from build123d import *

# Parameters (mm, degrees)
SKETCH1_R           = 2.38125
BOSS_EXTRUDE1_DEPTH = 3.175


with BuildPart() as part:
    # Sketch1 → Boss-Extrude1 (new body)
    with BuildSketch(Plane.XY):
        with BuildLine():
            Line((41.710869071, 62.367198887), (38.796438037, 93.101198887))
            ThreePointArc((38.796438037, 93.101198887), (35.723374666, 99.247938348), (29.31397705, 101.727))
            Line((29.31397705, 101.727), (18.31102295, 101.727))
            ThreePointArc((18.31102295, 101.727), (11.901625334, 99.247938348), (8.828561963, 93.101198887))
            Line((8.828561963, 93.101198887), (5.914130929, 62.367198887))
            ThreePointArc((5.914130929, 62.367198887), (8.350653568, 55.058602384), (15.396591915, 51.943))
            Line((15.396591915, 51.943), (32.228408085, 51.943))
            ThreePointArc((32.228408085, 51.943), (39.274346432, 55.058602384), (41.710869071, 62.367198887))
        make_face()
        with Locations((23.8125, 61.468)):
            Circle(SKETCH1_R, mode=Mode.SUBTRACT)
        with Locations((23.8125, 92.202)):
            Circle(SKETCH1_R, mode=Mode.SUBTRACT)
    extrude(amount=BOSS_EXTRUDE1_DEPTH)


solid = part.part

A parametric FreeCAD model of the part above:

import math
import FreeCAD as App
import Part
import Sketcher
from FreeCAD import Vector
Q = App.Units.Quantity

doc = App.newDocument("Part")
params = doc.addObject("Spreadsheet::Sheet", "Params")
for row, (alias, value) in enumerate([
    ("sketch1_diameter", "0.1875 in"),
    ("sketch1_radius", "0.375 in"),
    ("pad1_length", "0.125 in"),
], start=1):
    params.set(f"A{row}", alias)
    params.set(f"B{row}", "=" + value)
    params.setAlias(f"B{row}", alias)

body = doc.addObject("PartDesign::Body", "Body")

sketch1 = doc.addObject("Sketcher::SketchObject", "Sketch")
body.addObject(sketch1)
sketch1.AttachmentSupport = (doc.XY_Plane, [""])
sketch1.MapMode = "FlatFace"
sketch1.addGeometry([
    Part.LineSegment(Vector(41.7, 62.4, 0), Vector(38.8, 93.1, 0)),
    Part.ArcOfCircle(Part.Circle(Vector(29.3, 92.2, 0), Vector(0, 0, 1), 9.5), math.radians(5), math.radians(90)),
    Part.LineSegment(Vector(29.3, 101.7, 0), Vector(18.3, 101.7, 0)),
    Part.ArcOfCircle(Part.Circle(Vector(18.3, 92.2, 0), Vector(0, 0, 1), 9.5), math.radians(90), math.radians(175)),
    Part.LineSegment(Vector(8.8, 93.1, 0), Vector(5.9, 62.4, 0)),
    Part.ArcOfCircle(Part.Circle(Vector(15.4, 61.5, 0), Vector(0, 0, 1), 9.5), math.radians(175), math.radians(270)),
    Part.LineSegment(Vector(15.4, 51.9, 0), Vector(32.2, 51.9, 0)),
    Part.ArcOfCircle(Part.Circle(Vector(32.2, 61.5, 0), Vector(0, 0, 1), 9.5), math.radians(-90), math.radians(5)),
    Part.Circle(Vector(23.8, 61.5, 0), Vector(0, 0, 1), 2.4),
    Part.Circle(Vector(23.8, 92.2, 0), Vector(0, 0, 1), 2.4),
], False)
sketch1.addConstraint([
    Sketcher.Constraint("Tangent", 0, 2, 1, 1),
    Sketcher.Constraint("Tangent", 1, 2, 2, 1),
    Sketcher.Constraint("Tangent", 2, 2, 3, 1),
    Sketcher.Constraint("Tangent", 3, 2, 4, 1),
    Sketcher.Constraint("Tangent", 4, 2, 5, 1),
    Sketcher.Constraint("Tangent", 5, 2, 6, 1),
    Sketcher.Constraint("Tangent", 6, 2, 7, 1),
    Sketcher.Constraint("Tangent", 7, 2, 0, 1),
    Sketcher.Constraint("Horizontal", 2),
    Sketcher.Constraint("Horizontal", 6),
    Sketcher.Constraint("Equal", 1, 3),
    Sketcher.Constraint("Equal", 3, 5),
    Sketcher.Constraint("Equal", 5, 7),
    Sketcher.Constraint("Equal", 8, 9),
    Sketcher.Constraint("Horizontal", 7, 3, 8, 3),
    Sketcher.Constraint("Horizontal", 3, 3, 9, 3),
    Sketcher.Constraint("Horizontal", 0, 2, 3, 2),
    Sketcher.Constraint("Vertical", 8, 3, 9, 3),
    Sketcher.Constraint("Diameter", 8, Q("0.1875 in")),
    Sketcher.Constraint("Radius", 1, Q("0.375 in")),
    Sketcher.Constraint("DistanceY", -1, 1, 1, 3, Q("3.63 in")),
    Sketcher.Constraint("DistanceY", -1, 1, 5, 3, Q("2.42 in")),
    Sketcher.Constraint("DistanceX", -1, 1, 8, 3, Q("0.9375 in")),
    Sketcher.Constraint("DistanceY", -1, 1, 0, 2, Q("93.101199 mm")),
    Sketcher.Constraint("DistanceX", 2, 2, 2, 1, Q("11.002954 mm")),
    Sketcher.Constraint("DistanceX", -1, 1, 5, 3, Q("15.396592 mm")),
])
sketch1.setExpression("Constraints[18]", "Params.sketch1_diameter")
sketch1.setExpression("Constraints[19]", "Params.sketch1_radius")
pad1 = doc.addObject("PartDesign::Pad", "Pad")
body.addObject(pad1)
pad1.Profile = sketch1
pad1.setExpression("Length", "Params.pad1_length")

doc.recompute()
